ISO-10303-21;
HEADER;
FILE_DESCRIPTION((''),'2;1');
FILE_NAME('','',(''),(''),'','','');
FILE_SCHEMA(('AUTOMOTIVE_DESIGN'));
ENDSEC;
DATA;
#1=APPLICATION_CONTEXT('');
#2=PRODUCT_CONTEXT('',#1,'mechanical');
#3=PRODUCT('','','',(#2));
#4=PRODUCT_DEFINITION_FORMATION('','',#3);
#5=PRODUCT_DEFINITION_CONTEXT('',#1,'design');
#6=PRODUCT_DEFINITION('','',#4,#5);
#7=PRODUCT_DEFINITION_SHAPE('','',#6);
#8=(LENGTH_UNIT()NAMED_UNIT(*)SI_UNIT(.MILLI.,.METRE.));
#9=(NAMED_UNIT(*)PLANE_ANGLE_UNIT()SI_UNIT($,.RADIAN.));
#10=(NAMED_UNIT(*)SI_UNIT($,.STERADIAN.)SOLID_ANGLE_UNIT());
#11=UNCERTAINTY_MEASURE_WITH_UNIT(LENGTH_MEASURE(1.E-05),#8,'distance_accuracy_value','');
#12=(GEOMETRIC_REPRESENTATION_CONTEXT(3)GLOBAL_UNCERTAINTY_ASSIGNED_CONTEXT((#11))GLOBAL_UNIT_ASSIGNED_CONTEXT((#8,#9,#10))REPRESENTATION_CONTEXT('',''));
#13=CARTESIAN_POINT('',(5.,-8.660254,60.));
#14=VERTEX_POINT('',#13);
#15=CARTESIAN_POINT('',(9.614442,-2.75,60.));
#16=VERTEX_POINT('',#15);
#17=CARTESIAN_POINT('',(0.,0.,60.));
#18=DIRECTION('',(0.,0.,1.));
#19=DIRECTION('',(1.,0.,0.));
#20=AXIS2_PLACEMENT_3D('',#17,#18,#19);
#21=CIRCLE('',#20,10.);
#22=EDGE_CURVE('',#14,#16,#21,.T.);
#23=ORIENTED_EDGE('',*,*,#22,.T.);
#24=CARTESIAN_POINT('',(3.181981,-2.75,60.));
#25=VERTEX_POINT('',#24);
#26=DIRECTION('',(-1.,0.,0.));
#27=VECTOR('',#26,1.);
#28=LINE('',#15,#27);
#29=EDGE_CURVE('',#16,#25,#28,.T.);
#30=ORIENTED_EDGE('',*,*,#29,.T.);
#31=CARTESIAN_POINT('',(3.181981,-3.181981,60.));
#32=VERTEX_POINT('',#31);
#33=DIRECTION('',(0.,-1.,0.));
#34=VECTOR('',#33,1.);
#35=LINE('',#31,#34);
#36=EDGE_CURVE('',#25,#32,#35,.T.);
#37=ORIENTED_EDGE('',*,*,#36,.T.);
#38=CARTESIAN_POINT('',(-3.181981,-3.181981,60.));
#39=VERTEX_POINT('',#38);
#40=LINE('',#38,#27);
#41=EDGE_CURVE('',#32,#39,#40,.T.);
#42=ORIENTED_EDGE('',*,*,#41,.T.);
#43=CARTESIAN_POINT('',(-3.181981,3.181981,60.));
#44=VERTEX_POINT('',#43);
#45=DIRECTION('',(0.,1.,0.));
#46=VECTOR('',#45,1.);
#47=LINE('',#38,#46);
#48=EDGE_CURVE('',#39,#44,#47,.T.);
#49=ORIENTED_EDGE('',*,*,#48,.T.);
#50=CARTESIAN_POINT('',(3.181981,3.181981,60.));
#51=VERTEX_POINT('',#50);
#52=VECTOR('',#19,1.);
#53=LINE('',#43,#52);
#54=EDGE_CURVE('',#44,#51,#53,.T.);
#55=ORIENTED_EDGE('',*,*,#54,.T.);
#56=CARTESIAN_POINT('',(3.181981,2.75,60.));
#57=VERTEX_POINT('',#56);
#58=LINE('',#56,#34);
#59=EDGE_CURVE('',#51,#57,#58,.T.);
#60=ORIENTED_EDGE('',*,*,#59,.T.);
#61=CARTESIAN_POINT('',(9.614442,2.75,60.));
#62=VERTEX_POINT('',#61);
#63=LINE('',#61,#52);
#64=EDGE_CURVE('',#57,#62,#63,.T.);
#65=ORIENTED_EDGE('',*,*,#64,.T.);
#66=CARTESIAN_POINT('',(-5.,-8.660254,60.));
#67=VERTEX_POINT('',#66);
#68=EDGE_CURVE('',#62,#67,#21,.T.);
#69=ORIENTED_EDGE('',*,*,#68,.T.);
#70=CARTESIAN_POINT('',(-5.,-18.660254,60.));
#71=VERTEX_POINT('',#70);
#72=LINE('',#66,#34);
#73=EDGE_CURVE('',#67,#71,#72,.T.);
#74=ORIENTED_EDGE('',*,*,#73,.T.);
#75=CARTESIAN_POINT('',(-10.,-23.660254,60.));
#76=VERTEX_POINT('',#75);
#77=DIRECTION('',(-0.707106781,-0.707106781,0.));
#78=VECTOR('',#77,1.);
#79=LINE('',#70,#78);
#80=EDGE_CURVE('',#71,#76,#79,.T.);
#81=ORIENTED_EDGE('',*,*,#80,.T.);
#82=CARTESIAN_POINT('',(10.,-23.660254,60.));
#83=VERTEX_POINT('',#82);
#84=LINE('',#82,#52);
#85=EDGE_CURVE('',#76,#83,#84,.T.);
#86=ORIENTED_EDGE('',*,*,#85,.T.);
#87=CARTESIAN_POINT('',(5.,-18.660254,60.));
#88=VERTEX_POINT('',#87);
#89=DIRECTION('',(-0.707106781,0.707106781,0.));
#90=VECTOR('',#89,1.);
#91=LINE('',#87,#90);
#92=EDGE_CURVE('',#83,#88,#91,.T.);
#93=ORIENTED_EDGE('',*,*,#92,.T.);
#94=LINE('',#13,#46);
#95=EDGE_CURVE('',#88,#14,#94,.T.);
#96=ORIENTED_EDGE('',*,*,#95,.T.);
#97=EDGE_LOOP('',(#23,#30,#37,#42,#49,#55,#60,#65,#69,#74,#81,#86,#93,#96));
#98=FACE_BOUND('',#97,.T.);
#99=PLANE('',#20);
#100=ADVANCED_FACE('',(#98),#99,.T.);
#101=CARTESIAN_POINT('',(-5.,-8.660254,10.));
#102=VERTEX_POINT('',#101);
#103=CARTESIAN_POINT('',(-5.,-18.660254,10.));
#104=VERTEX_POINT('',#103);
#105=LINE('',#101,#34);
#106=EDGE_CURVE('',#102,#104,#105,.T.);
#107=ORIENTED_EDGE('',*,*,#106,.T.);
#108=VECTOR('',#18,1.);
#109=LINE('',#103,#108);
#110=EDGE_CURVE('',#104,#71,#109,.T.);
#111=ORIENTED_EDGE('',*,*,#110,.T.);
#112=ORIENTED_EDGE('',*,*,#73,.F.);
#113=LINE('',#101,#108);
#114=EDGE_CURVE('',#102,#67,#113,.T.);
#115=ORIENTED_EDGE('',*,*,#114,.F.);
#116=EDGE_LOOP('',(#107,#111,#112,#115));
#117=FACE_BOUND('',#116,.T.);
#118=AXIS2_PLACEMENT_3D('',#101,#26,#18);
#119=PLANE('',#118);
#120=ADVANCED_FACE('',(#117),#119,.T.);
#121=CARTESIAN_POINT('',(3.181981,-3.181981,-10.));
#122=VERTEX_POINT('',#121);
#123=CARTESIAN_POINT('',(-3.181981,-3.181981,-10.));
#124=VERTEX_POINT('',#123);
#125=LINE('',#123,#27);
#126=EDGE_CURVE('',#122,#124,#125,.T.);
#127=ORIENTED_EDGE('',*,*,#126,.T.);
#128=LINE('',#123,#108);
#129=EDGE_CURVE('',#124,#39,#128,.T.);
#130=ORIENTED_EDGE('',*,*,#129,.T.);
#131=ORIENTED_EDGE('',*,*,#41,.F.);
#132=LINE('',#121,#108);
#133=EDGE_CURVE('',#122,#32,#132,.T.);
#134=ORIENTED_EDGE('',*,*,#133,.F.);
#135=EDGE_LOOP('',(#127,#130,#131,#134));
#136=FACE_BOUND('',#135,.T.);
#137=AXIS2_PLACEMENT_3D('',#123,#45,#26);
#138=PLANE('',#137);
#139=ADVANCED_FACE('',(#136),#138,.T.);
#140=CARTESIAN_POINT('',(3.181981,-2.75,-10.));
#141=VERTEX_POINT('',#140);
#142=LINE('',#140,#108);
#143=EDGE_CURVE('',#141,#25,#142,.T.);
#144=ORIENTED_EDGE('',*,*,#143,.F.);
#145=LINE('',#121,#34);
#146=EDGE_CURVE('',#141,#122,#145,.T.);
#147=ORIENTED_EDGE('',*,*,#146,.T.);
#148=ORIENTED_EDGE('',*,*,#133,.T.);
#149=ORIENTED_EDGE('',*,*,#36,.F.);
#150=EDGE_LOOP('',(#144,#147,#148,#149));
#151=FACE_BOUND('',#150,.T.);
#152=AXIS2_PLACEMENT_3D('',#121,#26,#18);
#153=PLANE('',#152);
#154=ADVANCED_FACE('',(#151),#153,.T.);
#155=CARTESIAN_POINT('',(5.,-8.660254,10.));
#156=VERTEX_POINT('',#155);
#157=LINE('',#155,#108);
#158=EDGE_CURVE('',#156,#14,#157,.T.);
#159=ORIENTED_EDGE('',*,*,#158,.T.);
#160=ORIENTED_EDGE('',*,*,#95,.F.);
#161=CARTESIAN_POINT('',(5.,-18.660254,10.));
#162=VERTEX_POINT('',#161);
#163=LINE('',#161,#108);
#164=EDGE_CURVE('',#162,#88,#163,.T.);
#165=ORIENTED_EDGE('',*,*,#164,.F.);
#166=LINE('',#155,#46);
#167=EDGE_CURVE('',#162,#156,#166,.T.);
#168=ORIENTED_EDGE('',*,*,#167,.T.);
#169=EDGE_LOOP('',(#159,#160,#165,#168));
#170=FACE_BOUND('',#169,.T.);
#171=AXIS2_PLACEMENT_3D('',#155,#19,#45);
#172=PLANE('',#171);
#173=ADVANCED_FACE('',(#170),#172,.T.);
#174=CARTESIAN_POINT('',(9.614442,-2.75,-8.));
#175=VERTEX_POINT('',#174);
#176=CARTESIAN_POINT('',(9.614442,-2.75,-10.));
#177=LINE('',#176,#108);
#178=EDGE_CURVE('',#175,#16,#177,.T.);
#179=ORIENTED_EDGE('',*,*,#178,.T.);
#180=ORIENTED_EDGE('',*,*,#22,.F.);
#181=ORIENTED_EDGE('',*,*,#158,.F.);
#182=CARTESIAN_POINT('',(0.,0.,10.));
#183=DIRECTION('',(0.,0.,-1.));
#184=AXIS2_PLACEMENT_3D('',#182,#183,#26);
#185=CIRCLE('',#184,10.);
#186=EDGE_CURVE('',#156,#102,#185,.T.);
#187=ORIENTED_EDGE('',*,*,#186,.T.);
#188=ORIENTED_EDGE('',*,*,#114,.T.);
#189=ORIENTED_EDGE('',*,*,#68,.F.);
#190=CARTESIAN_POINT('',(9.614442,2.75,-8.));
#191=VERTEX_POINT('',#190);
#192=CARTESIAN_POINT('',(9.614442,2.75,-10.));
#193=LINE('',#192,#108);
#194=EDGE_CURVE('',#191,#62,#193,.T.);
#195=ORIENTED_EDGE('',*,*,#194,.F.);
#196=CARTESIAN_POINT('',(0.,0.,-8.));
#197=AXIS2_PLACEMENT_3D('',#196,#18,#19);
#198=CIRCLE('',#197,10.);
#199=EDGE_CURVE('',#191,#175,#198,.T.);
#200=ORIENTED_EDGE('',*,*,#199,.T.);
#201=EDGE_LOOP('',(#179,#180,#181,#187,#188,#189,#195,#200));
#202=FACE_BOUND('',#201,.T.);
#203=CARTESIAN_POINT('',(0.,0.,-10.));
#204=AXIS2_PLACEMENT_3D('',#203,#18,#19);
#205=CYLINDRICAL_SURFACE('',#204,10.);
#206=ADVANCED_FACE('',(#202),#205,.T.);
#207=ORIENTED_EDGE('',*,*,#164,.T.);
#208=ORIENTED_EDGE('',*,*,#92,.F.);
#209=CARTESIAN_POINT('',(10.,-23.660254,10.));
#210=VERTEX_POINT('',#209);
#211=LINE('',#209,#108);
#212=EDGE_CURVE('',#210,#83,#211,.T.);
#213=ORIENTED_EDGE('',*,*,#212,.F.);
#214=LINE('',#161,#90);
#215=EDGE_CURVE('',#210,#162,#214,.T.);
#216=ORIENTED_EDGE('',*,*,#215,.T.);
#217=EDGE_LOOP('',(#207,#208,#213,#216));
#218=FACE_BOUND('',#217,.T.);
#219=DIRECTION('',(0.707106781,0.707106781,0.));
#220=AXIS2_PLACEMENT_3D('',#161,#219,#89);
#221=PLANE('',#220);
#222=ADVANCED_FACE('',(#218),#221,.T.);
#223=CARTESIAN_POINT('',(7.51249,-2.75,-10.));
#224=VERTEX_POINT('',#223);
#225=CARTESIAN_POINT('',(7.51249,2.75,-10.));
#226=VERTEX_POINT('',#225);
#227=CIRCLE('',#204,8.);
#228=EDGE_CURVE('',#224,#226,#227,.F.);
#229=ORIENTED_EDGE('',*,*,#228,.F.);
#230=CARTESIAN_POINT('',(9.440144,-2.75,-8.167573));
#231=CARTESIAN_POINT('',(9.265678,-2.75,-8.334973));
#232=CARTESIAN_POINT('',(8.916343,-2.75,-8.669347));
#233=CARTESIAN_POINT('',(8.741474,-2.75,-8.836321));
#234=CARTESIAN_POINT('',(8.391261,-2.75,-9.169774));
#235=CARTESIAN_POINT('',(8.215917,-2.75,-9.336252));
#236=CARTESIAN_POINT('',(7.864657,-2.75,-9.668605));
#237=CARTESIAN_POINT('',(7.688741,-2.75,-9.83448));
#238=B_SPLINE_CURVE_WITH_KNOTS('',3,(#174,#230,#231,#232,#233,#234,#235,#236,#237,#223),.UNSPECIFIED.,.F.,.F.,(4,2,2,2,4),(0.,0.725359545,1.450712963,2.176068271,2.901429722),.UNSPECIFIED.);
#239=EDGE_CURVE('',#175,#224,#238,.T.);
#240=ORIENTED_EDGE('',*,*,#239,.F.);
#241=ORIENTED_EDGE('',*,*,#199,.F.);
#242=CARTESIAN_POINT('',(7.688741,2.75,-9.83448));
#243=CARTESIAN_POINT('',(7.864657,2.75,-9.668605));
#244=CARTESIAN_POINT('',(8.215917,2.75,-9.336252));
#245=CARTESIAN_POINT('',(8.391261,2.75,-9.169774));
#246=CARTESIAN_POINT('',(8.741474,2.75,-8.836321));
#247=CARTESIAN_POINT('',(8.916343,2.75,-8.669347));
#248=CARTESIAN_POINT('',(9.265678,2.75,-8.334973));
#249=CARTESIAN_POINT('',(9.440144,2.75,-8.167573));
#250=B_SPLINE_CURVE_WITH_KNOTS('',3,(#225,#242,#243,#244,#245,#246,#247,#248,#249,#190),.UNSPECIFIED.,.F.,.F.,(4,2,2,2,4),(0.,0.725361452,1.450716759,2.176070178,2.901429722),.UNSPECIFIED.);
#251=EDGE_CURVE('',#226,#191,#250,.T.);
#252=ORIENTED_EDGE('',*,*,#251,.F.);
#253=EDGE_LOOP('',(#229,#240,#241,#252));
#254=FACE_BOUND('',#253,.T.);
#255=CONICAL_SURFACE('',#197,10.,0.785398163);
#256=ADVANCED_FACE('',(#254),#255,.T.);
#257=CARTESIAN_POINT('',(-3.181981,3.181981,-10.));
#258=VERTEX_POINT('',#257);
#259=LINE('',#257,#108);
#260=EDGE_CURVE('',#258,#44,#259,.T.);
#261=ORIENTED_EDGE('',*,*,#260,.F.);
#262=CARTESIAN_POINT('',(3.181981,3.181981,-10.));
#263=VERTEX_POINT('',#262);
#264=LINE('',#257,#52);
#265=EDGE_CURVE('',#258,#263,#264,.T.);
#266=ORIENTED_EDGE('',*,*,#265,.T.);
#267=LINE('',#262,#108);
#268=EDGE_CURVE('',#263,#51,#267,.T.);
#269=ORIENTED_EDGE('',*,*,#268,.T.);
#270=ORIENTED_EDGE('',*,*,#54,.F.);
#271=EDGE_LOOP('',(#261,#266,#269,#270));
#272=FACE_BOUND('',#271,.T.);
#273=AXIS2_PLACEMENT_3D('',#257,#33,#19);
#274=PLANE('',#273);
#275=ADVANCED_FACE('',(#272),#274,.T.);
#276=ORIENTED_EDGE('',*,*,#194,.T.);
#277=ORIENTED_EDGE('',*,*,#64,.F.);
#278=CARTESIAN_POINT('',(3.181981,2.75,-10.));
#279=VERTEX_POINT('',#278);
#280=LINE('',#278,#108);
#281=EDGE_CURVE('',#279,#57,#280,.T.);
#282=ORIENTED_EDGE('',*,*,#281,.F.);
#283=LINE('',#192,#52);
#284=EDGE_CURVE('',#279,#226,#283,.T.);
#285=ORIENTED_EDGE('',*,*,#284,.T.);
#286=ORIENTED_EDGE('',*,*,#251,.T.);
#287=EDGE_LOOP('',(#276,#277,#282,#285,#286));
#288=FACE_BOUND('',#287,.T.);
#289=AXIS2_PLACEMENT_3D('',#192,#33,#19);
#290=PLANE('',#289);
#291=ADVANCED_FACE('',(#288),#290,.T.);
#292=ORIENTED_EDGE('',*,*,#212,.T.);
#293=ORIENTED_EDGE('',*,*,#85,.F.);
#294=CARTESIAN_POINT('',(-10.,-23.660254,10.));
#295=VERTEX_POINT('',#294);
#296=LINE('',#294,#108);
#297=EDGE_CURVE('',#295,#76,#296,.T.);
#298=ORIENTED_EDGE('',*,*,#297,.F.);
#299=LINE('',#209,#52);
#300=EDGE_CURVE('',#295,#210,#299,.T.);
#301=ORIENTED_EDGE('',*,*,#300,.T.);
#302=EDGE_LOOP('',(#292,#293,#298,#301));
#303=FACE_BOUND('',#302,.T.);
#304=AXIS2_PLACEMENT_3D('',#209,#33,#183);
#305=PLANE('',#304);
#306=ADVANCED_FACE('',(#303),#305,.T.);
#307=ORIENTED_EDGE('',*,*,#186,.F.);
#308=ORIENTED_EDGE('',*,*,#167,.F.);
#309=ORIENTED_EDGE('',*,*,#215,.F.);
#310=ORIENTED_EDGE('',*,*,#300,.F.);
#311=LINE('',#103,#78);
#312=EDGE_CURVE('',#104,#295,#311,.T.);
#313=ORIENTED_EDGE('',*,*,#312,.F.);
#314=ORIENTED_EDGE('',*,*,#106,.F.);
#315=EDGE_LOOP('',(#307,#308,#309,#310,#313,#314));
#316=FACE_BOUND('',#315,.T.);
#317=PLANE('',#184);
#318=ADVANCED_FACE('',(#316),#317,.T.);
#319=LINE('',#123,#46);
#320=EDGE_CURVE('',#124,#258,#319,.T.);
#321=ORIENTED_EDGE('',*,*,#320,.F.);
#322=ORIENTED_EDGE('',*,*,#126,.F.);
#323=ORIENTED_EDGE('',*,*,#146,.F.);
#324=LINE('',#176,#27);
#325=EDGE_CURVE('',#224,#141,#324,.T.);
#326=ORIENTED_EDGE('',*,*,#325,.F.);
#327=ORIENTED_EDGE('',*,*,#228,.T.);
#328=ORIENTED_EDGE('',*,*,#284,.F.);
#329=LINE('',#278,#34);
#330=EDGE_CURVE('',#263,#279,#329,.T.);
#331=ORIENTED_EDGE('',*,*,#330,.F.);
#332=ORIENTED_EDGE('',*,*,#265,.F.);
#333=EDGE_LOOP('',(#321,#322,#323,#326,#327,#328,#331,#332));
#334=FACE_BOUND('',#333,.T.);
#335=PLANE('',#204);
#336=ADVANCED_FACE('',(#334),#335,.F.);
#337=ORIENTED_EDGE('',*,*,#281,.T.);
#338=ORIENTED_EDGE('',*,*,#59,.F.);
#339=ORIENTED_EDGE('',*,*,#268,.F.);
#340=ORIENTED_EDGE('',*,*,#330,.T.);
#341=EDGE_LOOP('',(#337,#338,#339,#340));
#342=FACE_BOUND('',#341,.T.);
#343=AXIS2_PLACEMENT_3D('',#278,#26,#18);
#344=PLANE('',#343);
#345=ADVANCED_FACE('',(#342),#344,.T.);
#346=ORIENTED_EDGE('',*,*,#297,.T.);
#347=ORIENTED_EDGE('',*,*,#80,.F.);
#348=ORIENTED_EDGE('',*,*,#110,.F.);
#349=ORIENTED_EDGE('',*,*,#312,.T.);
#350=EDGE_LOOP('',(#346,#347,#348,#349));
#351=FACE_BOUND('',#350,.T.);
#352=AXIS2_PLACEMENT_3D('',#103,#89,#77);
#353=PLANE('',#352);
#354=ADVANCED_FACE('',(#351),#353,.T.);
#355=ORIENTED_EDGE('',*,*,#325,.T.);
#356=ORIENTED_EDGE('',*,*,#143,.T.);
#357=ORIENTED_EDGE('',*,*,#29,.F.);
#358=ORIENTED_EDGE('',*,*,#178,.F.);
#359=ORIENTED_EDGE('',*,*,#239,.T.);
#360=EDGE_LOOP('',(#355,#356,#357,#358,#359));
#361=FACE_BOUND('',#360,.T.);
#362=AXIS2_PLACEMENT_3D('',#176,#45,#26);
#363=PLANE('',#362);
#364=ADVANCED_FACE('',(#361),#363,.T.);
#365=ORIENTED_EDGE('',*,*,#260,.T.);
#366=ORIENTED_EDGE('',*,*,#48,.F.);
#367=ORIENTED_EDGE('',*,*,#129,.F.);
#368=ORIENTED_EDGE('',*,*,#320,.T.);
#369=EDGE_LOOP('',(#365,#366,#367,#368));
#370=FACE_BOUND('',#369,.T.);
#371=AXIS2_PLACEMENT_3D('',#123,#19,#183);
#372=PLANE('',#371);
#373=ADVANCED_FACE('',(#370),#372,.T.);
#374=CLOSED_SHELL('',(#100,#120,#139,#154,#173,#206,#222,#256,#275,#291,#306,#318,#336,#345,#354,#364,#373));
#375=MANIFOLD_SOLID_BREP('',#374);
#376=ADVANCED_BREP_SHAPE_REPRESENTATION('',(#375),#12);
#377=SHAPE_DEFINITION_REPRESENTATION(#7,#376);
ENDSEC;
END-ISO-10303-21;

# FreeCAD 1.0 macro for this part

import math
import FreeCAD as App
import Part
import Sketcher


def edges_at(feature, points):
    """Names of the edges that pass closest to the given points."""
    edges = feature.Shape.Edges
    near = lambda p: min(range(len(edges)), key=lambda i: edges[i].distToShape(Part.Vertex(*p))[0])
    return sorted({f"Edge{near(p) + 1}" for p in points})

doc = App.newDocument("Part")
params = doc.addObject("Spreadsheet::Sheet", "Params")
for row, (alias, value) in enumerate([
    ("sketch1_radius", "10 mm"),
    ("pad1_length", "60 mm"),
    ("pad1_length2", "10 mm"),
    ("sketch2_radius", "10 mm"),
    ("sketch2_width", "20 mm"),
    ("sketch2_height", "10 mm"),
    ("pad2_length", "50 mm"),
    ("chamfer_size", "2 mm"),
], start=1):
    params.set(f"A{row}", alias)
    params.set(f"B{row}", "=" + value)
    params.setAlias(f"B{row}", alias)

body = doc.addObject("PartDesign::Body", "Body")

# Sketch on XY plane
sketch1 = doc.addObject("Sketcher::SketchObject", "Sketch")
body.addObject(sketch1)
sketch1.AttachmentSupport = (doc.XY_Plane, [""])
sketch1.MapMode = "FlatFace"
sketch1.addGeometry([
    Part.LineSegment(App.Vector(3.181981, 3.181981, 0), App.Vector(3.181981, 2.75, 0)),  # 0
    Part.LineSegment(App.Vector(3.181981, 2.75, 0), App.Vector(9.614442, 2.75, 0)),  # 1
    Part.ArcOfCircle(Part.Circle(App.Vector(0, 0, 0), App.Vector(0, 0, 1), 10), math.radians(15.962014), math.radians(344.037986)),  # 2
    Part.LineSegment(App.Vector(9.614442, -2.75, 0), App.Vector(3.181981, -2.75, 0)),  # 3
    Part.LineSegment(App.Vector(3.181981, -2.75, 0), App.Vector(3.181981, -3.181981, 0)),  # 4
    Part.LineSegment(App.Vector(3.181981, -3.181981, 0), App.Vector(-3.181981, -3.181981, 0)),  # 5
    Part.LineSegment(App.Vector(-3.181981, -3.181981, 0), App.Vector(-3.181981, 3.181981, 0)),  # 6
    Part.LineSegment(App.Vector(-3.181981, 3.181981, 0), App.Vector(3.181981, 3.181981, 0)),  # 7
], False)
sketch1.addConstraint([
    Sketcher.Constraint("Coincident", 0, 2, 1, 1),
    Sketcher.Constraint("Coincident", 1, 2, 2, 1),
    Sketcher.Constraint("Coincident", 2, 2, 3, 1),
    Sketcher.Constraint("Coincident", 3, 2, 4, 1),
    Sketcher.Constraint("Coincident", 4, 2, 5, 1),
    Sketcher.Constraint("Coincident", 5, 2, 6, 1),
    Sketcher.Constraint("Coincident", 6, 2, 7, 1),
    Sketcher.Constraint("Coincident", 7, 2, 0, 1),
    Sketcher.Constraint("Vertical", 0),
    Sketcher.Constraint("Horizontal", 1),
    Sketcher.Constraint("Horizontal", 3),
    Sketcher.Constraint("Vertical", 4),
    Sketcher.Constraint("Horizontal", 5),
    Sketcher.Constraint("Vertical", 6),
    Sketcher.Constraint("Horizontal", 7),
    Sketcher.Constraint("Coincident", 2, 3, -1, 1),
    Sketcher.Constraint("Symmetric", 4, 2, 6, 2, -1, 1),
    Sketcher.Constraint("Symmetric", 0, 2, 3, 2, -1),
    Sketcher.Constraint("Equal", 7, 6),
    Sketcher.Constraint("Radius", 2, 10.0),
    Sketcher.Constraint("DistanceY", 2, 2, 1, 2, 5.5),
    Sketcher.Constraint("DistanceX", 1, 1, 1, 2, 6.432462),
])
sketch1.setExpression("Constraints[19]", "Params.sketch1_radius")
pad1 = doc.addObject("PartDesign::Pad", "Pad")
body.addObject(pad1)
pad1.Profile = sketch1
pad1.Type = "TwoLengths"
pad1.setExpression("Length", "Params.pad1_length")
pad1.setExpression("Length2", "Params.pad1_length2")

# Sketch on XY plane
sketch2 = doc.addObject("Sketcher::SketchObject", "Sketch001")
body.addObject(sketch2)
sketch2.AttachmentSupport = (doc.XY_Plane, [""])
sketch2.MapMode = "FlatFace"
sketch2.AttachmentOffset = App.Placement(App.Vector(0, 0, 10), App.Rotation())
sketch2.addGeometry([
    Part.LineSegment(App.Vector(5, -18.660254, 0), App.Vector(5, -8.660254, 0)),  # 0
    Part.ArcOfCircle(Part.Circle(App.Vector(0, 0, 0), App.Vector(0, 0, 1), 10), math.radians(-120), math.radians(-60)),  # 1
    Part.LineSegment(App.Vector(-5, -8.660254, 0), App.Vector(-5, -18.660254, 0)),  # 2
    Part.LineSegment(App.Vector(-5, -18.660254, 0), App.Vector(-10, -23.660254, 0)),  # 3
    Part.LineSegment(App.Vector(-10, -23.660254, 0), App.Vector(10, -23.660254, 0)),  # 4
    Part.LineSegment(App.Vector(10, -23.660254, 0), App.Vector(5, -18.660254, 0)),  # 5
], False)
sketch2.addConstraint([
    Sketcher.Constraint("Coincident", 0, 2, 1, 2),
    Sketcher.Constraint("Coincident", 1, 1, 2, 1),
    Sketcher.Constraint("Coincident", 2, 2, 3, 1),
    Sketcher.Constraint("Coincident", 3, 2, 4, 1),
    Sketcher.Constraint("Coincident", 4, 2, 5, 1),
    Sketcher.Constraint("Coincident", 5, 2, 0, 1),
    Sketcher.Constraint("Vertical", 0),
    Sketcher.Constraint("Vertical", 2),
    Sketcher.Constraint("Horizontal", 4),
    Sketcher.Constraint("Coincident", 1, 3, -1, 1),
    Sketcher.Constraint("Symmetric", 2, 2, 5, 2, -2),
    Sketcher.Constraint("Perpendicular", 3, 5),
    Sketcher.Constraint("Equal", 3, 5),
    Sketcher.Constraint("Radius", 1, 10.0),
    Sketcher.Constraint("DistanceX", 4, 1, 4, 2, 20.0),
    Sketcher.Constraint("DistanceY", 0, 1, 0, 2, 10.0),
    Sketcher.Constraint("DistanceX", -1, 1, 0, 2, 5.0),
])
sketch2.setExpression("Constraints[13]", "Params.sketch2_radius")
sketch2.setExpression("Constraints[14]", "Params.sketch2_width")
sketch2.setExpression("Constraints[15]", "Params.sketch2_height")
pad2 = doc.addObject("PartDesign::Pad", "Pad001")
body.addObject(pad2)
pad2.Profile = sketch2
pad2.setExpression("Length", "Params.pad2_length")
doc.recompute()

chamfer = doc.addObject("PartDesign::Chamfer", "Chamfer")
body.addObject(chamfer)
chamfer.Base = (pad2, edges_at(pad2, [(-10, 0, -10)]))
chamfer.setExpression("Size", "Params.chamfer_size")

doc.recompute()
